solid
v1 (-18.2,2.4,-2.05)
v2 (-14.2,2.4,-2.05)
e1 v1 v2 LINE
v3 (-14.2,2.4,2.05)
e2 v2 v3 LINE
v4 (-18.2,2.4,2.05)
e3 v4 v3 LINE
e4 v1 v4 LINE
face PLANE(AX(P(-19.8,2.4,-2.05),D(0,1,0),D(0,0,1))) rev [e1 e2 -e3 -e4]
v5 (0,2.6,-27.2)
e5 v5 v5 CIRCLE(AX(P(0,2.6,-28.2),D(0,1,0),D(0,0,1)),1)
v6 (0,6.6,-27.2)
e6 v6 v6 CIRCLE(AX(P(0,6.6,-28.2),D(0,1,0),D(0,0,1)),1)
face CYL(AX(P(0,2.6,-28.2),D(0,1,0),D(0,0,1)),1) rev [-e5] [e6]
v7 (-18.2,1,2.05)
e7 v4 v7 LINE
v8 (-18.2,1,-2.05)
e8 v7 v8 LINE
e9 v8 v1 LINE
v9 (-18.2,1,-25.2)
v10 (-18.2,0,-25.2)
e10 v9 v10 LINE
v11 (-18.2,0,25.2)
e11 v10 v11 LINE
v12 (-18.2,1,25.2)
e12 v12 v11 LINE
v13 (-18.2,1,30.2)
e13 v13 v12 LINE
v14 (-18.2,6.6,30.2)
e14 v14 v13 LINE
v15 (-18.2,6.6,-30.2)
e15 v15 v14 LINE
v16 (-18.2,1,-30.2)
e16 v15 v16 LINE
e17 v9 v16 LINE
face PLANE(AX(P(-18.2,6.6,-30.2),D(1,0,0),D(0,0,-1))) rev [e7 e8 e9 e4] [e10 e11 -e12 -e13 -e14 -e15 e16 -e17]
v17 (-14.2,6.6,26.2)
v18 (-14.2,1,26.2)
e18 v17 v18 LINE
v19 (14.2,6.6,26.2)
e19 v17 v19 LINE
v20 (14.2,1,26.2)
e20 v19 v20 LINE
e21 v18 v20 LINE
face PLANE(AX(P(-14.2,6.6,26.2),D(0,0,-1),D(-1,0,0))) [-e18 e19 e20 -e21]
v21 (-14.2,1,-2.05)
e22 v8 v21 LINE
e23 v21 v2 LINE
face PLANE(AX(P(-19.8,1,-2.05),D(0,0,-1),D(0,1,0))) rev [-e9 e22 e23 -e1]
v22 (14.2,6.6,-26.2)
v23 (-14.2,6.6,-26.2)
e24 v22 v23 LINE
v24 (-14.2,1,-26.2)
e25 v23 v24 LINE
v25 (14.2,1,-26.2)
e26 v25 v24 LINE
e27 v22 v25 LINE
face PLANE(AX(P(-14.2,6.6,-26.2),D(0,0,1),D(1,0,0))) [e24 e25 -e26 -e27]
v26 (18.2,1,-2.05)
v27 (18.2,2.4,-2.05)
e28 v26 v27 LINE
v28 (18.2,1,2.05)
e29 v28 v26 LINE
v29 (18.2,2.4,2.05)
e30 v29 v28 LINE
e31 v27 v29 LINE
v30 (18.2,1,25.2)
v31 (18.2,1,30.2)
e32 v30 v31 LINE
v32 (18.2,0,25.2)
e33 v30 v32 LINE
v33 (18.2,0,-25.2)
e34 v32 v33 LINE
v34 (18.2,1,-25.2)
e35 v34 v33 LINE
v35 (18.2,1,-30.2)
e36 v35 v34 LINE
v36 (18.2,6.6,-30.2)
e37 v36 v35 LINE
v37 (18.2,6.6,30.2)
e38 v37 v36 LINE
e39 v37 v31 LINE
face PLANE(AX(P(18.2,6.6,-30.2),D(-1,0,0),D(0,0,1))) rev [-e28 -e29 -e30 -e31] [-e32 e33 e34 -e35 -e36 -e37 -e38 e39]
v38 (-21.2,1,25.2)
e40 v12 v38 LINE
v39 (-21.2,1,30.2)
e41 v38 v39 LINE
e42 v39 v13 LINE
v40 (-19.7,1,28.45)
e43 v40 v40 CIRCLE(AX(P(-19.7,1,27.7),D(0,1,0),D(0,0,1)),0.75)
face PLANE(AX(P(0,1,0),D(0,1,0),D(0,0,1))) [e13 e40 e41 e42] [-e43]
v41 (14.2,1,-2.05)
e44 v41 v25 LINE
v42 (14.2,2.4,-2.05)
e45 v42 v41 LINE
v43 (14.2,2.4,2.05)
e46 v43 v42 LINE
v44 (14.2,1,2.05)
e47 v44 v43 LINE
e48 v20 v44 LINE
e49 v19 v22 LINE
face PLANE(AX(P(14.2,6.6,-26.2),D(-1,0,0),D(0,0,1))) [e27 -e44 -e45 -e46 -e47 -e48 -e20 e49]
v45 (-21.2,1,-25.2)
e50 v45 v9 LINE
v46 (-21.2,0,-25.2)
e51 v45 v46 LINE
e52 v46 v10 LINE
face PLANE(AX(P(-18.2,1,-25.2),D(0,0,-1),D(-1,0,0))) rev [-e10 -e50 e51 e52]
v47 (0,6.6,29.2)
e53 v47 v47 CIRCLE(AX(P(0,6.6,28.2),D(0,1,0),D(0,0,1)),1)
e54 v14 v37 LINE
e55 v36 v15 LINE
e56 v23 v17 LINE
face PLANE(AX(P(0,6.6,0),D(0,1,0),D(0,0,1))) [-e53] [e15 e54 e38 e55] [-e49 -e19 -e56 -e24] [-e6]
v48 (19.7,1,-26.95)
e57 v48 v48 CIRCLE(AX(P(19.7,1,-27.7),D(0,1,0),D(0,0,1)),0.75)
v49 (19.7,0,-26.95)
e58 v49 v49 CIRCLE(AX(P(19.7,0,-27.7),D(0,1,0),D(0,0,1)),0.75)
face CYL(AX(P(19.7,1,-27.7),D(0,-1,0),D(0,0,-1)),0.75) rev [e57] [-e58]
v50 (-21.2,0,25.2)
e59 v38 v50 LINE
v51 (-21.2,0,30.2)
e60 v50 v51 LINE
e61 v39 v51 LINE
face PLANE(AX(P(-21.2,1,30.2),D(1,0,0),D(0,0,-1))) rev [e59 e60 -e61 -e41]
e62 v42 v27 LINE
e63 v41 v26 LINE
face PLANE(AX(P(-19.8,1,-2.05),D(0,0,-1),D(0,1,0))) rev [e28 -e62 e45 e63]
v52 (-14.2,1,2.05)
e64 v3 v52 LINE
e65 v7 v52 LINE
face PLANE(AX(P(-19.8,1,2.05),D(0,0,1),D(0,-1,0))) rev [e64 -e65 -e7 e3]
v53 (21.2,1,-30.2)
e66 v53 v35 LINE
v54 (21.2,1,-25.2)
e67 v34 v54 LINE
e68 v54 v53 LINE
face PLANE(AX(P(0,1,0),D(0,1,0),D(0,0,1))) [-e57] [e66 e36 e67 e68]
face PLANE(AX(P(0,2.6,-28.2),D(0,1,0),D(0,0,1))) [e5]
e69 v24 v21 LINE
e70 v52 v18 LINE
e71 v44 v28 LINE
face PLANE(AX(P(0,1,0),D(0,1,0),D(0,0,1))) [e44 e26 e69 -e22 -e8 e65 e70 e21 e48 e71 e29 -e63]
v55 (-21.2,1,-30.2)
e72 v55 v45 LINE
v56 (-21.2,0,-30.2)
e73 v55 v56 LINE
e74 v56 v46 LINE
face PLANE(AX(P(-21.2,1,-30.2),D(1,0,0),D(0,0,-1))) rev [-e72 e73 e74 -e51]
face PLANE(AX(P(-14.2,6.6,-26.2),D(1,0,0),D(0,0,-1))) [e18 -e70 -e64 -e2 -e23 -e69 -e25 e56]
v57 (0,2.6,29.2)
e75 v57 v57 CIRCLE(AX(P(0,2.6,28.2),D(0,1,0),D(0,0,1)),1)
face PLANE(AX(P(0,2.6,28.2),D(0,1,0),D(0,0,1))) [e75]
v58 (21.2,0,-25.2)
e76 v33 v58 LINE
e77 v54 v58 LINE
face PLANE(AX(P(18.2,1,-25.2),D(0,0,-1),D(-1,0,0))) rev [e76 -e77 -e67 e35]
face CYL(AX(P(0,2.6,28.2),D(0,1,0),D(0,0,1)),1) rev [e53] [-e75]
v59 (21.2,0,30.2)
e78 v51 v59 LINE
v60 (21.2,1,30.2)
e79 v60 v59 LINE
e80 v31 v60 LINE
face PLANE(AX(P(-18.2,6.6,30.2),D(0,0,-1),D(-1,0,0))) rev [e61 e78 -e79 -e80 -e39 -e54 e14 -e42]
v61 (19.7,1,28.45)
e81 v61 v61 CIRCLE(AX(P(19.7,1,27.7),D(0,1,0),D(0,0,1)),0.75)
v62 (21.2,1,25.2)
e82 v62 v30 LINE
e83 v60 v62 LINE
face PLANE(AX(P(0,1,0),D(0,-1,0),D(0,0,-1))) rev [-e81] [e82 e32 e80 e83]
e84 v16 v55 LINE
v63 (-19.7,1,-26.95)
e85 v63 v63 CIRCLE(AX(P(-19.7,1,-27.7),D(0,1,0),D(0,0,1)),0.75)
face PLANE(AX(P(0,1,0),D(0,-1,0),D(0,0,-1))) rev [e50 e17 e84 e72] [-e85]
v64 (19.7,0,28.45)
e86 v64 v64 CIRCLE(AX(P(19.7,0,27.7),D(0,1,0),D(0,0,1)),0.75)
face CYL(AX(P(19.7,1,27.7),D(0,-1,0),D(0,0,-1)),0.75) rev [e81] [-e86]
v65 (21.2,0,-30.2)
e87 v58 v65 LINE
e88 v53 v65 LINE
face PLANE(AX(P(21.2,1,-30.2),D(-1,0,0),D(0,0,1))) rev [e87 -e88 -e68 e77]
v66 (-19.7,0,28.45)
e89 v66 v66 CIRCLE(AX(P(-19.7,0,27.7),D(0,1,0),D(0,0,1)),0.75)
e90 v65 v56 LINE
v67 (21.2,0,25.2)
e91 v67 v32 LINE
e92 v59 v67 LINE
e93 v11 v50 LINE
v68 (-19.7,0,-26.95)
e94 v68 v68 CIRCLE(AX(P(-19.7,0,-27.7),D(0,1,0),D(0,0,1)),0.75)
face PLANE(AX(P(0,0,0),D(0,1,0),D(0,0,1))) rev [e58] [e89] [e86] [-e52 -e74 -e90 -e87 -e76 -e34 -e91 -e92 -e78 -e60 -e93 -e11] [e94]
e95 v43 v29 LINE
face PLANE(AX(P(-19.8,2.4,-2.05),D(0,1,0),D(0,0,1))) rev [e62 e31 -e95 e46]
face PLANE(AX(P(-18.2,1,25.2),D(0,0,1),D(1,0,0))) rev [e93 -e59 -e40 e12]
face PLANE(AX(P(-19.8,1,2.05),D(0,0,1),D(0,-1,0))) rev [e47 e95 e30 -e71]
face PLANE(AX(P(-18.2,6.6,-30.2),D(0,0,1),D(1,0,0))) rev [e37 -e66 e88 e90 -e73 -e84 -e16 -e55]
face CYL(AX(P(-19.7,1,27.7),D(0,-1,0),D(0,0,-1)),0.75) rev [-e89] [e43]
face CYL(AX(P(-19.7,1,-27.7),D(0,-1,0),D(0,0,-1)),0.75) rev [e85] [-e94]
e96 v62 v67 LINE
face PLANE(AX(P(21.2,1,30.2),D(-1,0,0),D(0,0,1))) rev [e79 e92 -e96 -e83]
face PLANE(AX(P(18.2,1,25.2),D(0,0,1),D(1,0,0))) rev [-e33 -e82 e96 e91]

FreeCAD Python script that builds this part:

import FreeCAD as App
import Part
import Sketcher
from FreeCAD import Vector
Q = App.Units.Quantity

doc = App.newDocument("Part")
body = doc.addObject("PartDesign::Body", "Body")

# Sketch on XZ plane
sketch1 = body.newObject("Sketcher::SketchObject", "Sketch")
sketch1.AttachmentSupport = (doc.getObject("XZ_Plane"), [""])
sketch1.MapMode = "FlatFace"
sketch1.addGeometry([
    Part.LineSegment(Vector(-18, -30, 0), Vector(-18, 30, 0)),  # 0
    Part.LineSegment(Vector(-18, 30, 0), Vector(18, 30, 0)),  # 1
    Part.LineSegment(Vector(18, 30, 0), Vector(18, -30, 0)),  # 2
    Part.LineSegment(Vector(18, -30, 0), Vector(-18, -30, 0)),  # 3
    Part.LineSegment(Vector(14, 26, 0), Vector(-14, 26, 0)),  # 4
    Part.LineSegment(Vector(-14, 26, 0), Vector(-14, -26, 0)),  # 5
    Part.LineSegment(Vector(-14, -26, 0), Vector(14, -26, 0)),  # 6
    Part.LineSegment(Vector(14, -26, 0), Vector(14, 26, 0)),  # 7
], False)
sketch1.addConstraint([
    Sketcher.Constraint("Coincident", 0, 2, 1, 1),
    Sketcher.Constraint("Coincident", 1, 2, 2, 1),
    Sketcher.Constraint("Coincident", 2, 2, 3, 1),
    Sketcher.Constraint("Coincident", 3, 2, 0, 1),
    Sketcher.Constraint("Coincident", 4, 2, 5, 1),
    Sketcher.Constraint("Coincident", 5, 2, 6, 1),
    Sketcher.Constraint("Coincident", 6, 2, 7, 1),
    Sketcher.Constraint("Coincident", 7, 2, 4, 1),
    Sketcher.Constraint("Vertical", 0),
    Sketcher.Constraint("Horizontal", 1),
    Sketcher.Constraint("Vertical", 2),
    Sketcher.Constraint("Horizontal", 3),
    Sketcher.Constraint("Horizontal", 4),
    Sketcher.Constraint("Vertical", 5),
    Sketcher.Constraint("Horizontal", 6),
    Sketcher.Constraint("Vertical", 7),
    Sketcher.Constraint("Symmetric", 0, 2, 2, 2, -1, 1),
    Sketcher.Constraint("Symmetric", 4, 2, 6, 2, -1, 1),
    Sketcher.Constraint("DistanceX", 1, 1, 1, 2, Q("36.4 mm")),
    Sketcher.Constraint("DistanceX", 4, 2, 4, 1, Q("28.4 mm")),
    Sketcher.Constraint("DistanceY", 0, 1, 0, 2, Q("60.4 mm")),
    Sketcher.Constraint("DistanceY", 5, 2, 5, 1, Q("52.4 mm")),
])
pad1 = body.newObject("PartDesign::Pad", "Pad")
pad1.Profile = sketch1
pad1.Length = 6.6
pad1.Reversed = True

# Sketch on XZ plane
sketch2 = body.newObject("Sketcher::SketchObject", "Sketch001")
sketch2.AttachmentSupport = (doc.getObject("XZ_Plane"), [""])
sketch2.MapMode = "FlatFace"
sketch2.addGeometry([
    Part.LineSegment(Vector(-14, -26, 0), Vector(-14, 26, 0)),
    Part.LineSegment(Vector(-14, 26, 0), Vector(14, 26, 0)),
    Part.LineSegment(Vector(14, 26, 0), Vector(14, -26, 0)),
    Part.LineSegment(Vector(14, -26, 0), Vector(-14, -26, 0)),
], False)
sketch2.addConstraint([
    Sketcher.Constraint("Coincident", 0, 2, 1, 1),
    Sketcher.Constraint("Coincident", 1, 2, 2, 1),
    Sketcher.Constraint("Coincident", 2, 2, 3, 1),
    Sketcher.Constraint("Coincident", 3, 2, 0, 1),
    Sketcher.Constraint("Vertical", 0),
    Sketcher.Constraint("Horizontal", 1),
    Sketcher.Constraint("Vertical", 2),
    Sketcher.Constraint("Horizontal", 3),
    Sketcher.Constraint("Symmetric", 0, 2, 2, 2, -1, 1),
    Sketcher.Constraint("DistanceX", 1, 1, 1, 2, Q("28.4 mm")),
    Sketcher.Constraint("DistanceY", 0, 1, 0, 2, Q("52.4 mm")),
])
pad2 = body.newObject("PartDesign::Pad", "Pad001")
pad2.Profile = sketch2
pad2.Length = 1
pad2.Reversed = True

# Sketch on YZ plane
sketch3 = body.newObject("Sketcher::SketchObject", "Sketch002")
sketch3.AttachmentSupport = (doc.getObject("YZ_Plane"), [""])
sketch3.MapMode = "FlatFace"
sketch3.AttachmentOffset = App.Placement(Vector(0, 0, 18.2), App.Rotation())
sketch3.addGeometry([
    Part.LineSegment(Vector(2.4, 2, 0), Vector(1, 2, 0)),
    Part.LineSegment(Vector(1, 2, 0), Vector(1, -2, 0)),
    Part.LineSegment(Vector(1, -2, 0), Vector(2.4, -2, 0)),
    Part.LineSegment(Vector(2.4, -2, 0), Vector(2.4, 2, 0)),
], False)
sketch3.addConstraint([
    Sketcher.Constraint("Coincident", 0, 2, 1, 1),
    Sketcher.Constraint("Coincident", 1, 2, 2, 1),
    Sketcher.Constraint("Coincident", 2, 2, 3, 1),
    Sketcher.Constraint("Coincident", 3, 2, 0, 1),
    Sketcher.Constraint("Horizontal", 0),
    Sketcher.Constraint("Vertical", 1),
    Sketcher.Constraint("Horizontal", 2),
    Sketcher.Constraint("Vertical", 3),
    Sketcher.Constraint("DistanceX", 0, 2, 0, 1, Q("1.4 mm")),
    Sketcher.Constraint("DistanceY", 1, 2, 1, 1, Q("4.1 mm")),
    Sketcher.Constraint("DistanceX", -1, 1, 0, 2, Q("1 mm")),
    Sketcher.Constraint("DistanceY", -1, 1, 0, 2, Q("2.05 mm")),
])
pocket1 = body.newObject("PartDesign::Pocket", "Pocket")
pocket1.Profile = sketch3
pocket1.Length = 38

# Sketch on XZ plane
sketch4 = body.newObject("Sketcher::SketchObject", "Sketch003")
sketch4.AttachmentSupport = (doc.getObject("XZ_Plane"), [""])
sketch4.MapMode = "FlatFace"
sketch4.addGeometry([
    Part.LineSegment(Vector(-21.2, -30.2, 0), Vector(-21.2, -25.2, 0)),  # 0
    Part.LineSegment(Vector(-21.2, -25.2, 0), Vector(-18.2, -25.2, 0)),  # 1
    Part.LineSegment(Vector(-18.2, -25.2, 0), Vector(-18.2, -30.2, 0)),  # 2
    Part.LineSegment(Vector(-18.2, -30.2, 0), Vector(-21.2, -30.2, 0)),  # 3
    Part.Circle(Vector(-19.7, -27.7, 0), Vector(0, 0, 1), 0.8),  # 4
    Part.LineSegment(Vector(-21.2, 25.2, 0), Vector(-21.2, 30.2, 0)),  # 5
    Part.LineSegment(Vector(-21.2, 30.2, 0), Vector(-18.2, 30.2, 0)),  # 6
    Part.LineSegment(Vector(-18.2, 30.2, 0), Vector(-18.2, 25.2, 0)),  # 7
    Part.LineSegment(Vector(-18.2, 25.2, 0), Vector(-21.2, 25.2, 0)),  # 8
    Part.Circle(Vector(-19.7, 27.7, 0), Vector(0, 0, 1), 0.8),  # 9
    Part.LineSegment(Vector(18.2, 25.2, 0), Vector(18.2, 30.2, 0)),  # 10
    Part.LineSegment(Vector(18.2, 30.2, 0), Vector(21.2, 30.2, 0)),  # 11
    Part.LineSegment(Vector(21.2, 30.2, 0), Vector(21.2, 25.2, 0)),  # 12
    Part.LineSegment(Vector(21.2, 25.2, 0), Vector(18.2, 25.2, 0)),  # 13
    Part.Circle(Vector(19.7, 27.7, 0), Vector(0, 0, 1), 0.8),  # 14
    Part.LineSegment(Vector(18.2, -30.2, 0), Vector(18.2, -25.2, 0)),  # 15
    Part.LineSegment(Vector(18.2, -25.2, 0), Vector(21.2, -25.2, 0)),  # 16
    Part.LineSegment(Vector(21.2, -25.2, 0), Vector(21.2, -30.2, 0)),  # 17
    Part.LineSegment(Vector(21.2, -30.2, 0), Vector(18.2, -30.2, 0)),  # 18
    Part.Circle(Vector(19.7, -27.7, 0), Vector(0, 0, 1), 0.8),  # 19
], False)
sketch4.addConstraint([
    Sketcher.Constraint("Coincident", 0, 2, 1, 1),
    Sketcher.Constraint("Coincident", 1, 2, 2, 1),
    Sketcher.Constraint("Coincident", 2, 2, 3, 1),
    Sketcher.Constraint("Coincident", 3, 2, 0, 1),
    Sketcher.Constraint("Coincident", 5, 2, 6, 1),
    Sketcher.Constraint("Coincident", 6, 2, 7, 1),
    Sketcher.Constraint("Coincident", 7, 2, 8, 1),
    Sketcher.Constraint("Coincident", 8, 2, 5, 1),
    Sketcher.Constraint("Coincident", 10, 2, 11, 1),
    Sketcher.Constraint("Coincident", 11, 2, 12, 1),
    Sketcher.Constraint("Coincident", 12, 2, 13, 1),
    Sketcher.Constraint("Coincident", 13, 2, 10, 1),
    Sketcher.Constraint("Coincident", 15, 2, 16, 1),
    Sketcher.Constraint("Coincident", 16, 2, 17, 1),
    Sketcher.Constraint("Coincident", 17, 2, 18, 1),
    Sketcher.Constraint("Coincident", 18, 2, 15, 1),
    Sketcher.Constraint("Vertical", 0),
    Sketcher.Constraint("Horizontal", 1),
    Sketcher.Constraint("Vertical", 2),
    Sketcher.Constraint("Horizontal", 3),
    Sketcher.Constraint("Vertical", 5),
    Sketcher.Constraint("Horizontal", 6),
    Sketcher.Constraint("Vertical", 7),
    Sketcher.Constraint("Horizontal", 8),
    Sketcher.Constraint("Vertical", 10),
    Sketcher.Constraint("Horizontal", 11),
    Sketcher.Constraint("Vertical", 12),
    Sketcher.Constraint("Horizontal", 13),
    Sketcher.Constraint("Vertical", 15),
    Sketcher.Constraint("Horizontal", 16),
    Sketcher.Constraint("Vertical", 17),
    Sketcher.Constraint("Horizontal", 18),
    Sketcher.Constraint("Equal", 4, 9),
    Sketcher.Constraint("Equal", 9, 14),
    Sketcher.Constraint("Equal", 14, 19),
    Sketcher.Constraint("Symmetric", 4, 3, 14, 3, -1, 1),
    Sketcher.Constraint("Symmetric", 9, 3, 19, 3, -1, 1),
    Sketcher.Constraint("Symmetric", 2, 2, 10, 2, -1, 1),
    Sketcher.Constraint("Symmetric", 0, 2, 12, 2, -1, 1),
    Sketcher.Constraint("Symmetric", 7, 2, 15, 2, -1, 1),
    Sketcher.Constraint("Symmetric", 5, 2, 17, 2, -1, 1),
    Sketcher.Constraint("Symmetric", 9, 3, 14, 3, -2),
    Sketcher.Constraint("Symmetric", 6, 2, 10, 2, -2),
    Sketcher.Constraint("Symmetric", 8, 2, 12, 2, -2),
    Sketcher.Constraint("Diameter", 4, Q("1.5 mm")),
    Sketcher.Constraint("DistanceX", 1, 1, 1, 2, Q("3 mm")),
    Sketcher.Constraint("DistanceY", 0, 1, 0, 2, Q("5 mm")),
    Sketcher.Constraint("DistanceX", 4, 3, -1, 1, Q("19.7 mm")),
    Sketcher.Constraint("DistanceY", 4, 3, -1, 1, Q("27.7 mm")),
    Sketcher.Constraint("DistanceX", 0, 2, -1, 1, Q("21.2 mm")),
    Sketcher.Constraint("DistanceY", 0, 2, -1, 1, Q("25.2 mm")),
])
pad3 = body.newObject("PartDesign::Pad", "Pad002")
pad3.Profile = sketch4
pad3.Length = 1
pad3.Reversed = True

# Sketch on XZ plane
sketch5 = body.newObject("Sketcher::SketchObject", "Sketch004")
sketch5.AttachmentSupport = (doc.getObject("XZ_Plane"), [""])
sketch5.MapMode = "FlatFace"
sketch5.AttachmentOffset = App.Placement(Vector(0, 0, -6.6), App.Rotation())
sketch5.addGeometry([
    Part.Circle(Vector(0, -28.2, 0), Vector(0, 0, 1), 1),
    Part.Circle(Vector(0, 28.2, 0), Vector(0, 0, 1), 1),
], False)
sketch5.addConstraint([
    Sketcher.Constraint("Equal", 0, 1),
    Sketcher.Constraint("Symmetric", 0, 3, 1, 3, -1, 1),
    Sketcher.Constraint("PointOnObject", 0, 3, -2),
    Sketcher.Constraint("Diameter", 0, Q("2 mm")),
    Sketcher.Constraint("DistanceY", 0, 3, -1, 1, Q("28.2 mm")),
])
pocket2 = body.newObject("PartDesign::Pocket", "Pocket001")
pocket2.Profile = sketch5
pocket2.Length = 4
pocket2.Reversed = True

doc.recompute()
